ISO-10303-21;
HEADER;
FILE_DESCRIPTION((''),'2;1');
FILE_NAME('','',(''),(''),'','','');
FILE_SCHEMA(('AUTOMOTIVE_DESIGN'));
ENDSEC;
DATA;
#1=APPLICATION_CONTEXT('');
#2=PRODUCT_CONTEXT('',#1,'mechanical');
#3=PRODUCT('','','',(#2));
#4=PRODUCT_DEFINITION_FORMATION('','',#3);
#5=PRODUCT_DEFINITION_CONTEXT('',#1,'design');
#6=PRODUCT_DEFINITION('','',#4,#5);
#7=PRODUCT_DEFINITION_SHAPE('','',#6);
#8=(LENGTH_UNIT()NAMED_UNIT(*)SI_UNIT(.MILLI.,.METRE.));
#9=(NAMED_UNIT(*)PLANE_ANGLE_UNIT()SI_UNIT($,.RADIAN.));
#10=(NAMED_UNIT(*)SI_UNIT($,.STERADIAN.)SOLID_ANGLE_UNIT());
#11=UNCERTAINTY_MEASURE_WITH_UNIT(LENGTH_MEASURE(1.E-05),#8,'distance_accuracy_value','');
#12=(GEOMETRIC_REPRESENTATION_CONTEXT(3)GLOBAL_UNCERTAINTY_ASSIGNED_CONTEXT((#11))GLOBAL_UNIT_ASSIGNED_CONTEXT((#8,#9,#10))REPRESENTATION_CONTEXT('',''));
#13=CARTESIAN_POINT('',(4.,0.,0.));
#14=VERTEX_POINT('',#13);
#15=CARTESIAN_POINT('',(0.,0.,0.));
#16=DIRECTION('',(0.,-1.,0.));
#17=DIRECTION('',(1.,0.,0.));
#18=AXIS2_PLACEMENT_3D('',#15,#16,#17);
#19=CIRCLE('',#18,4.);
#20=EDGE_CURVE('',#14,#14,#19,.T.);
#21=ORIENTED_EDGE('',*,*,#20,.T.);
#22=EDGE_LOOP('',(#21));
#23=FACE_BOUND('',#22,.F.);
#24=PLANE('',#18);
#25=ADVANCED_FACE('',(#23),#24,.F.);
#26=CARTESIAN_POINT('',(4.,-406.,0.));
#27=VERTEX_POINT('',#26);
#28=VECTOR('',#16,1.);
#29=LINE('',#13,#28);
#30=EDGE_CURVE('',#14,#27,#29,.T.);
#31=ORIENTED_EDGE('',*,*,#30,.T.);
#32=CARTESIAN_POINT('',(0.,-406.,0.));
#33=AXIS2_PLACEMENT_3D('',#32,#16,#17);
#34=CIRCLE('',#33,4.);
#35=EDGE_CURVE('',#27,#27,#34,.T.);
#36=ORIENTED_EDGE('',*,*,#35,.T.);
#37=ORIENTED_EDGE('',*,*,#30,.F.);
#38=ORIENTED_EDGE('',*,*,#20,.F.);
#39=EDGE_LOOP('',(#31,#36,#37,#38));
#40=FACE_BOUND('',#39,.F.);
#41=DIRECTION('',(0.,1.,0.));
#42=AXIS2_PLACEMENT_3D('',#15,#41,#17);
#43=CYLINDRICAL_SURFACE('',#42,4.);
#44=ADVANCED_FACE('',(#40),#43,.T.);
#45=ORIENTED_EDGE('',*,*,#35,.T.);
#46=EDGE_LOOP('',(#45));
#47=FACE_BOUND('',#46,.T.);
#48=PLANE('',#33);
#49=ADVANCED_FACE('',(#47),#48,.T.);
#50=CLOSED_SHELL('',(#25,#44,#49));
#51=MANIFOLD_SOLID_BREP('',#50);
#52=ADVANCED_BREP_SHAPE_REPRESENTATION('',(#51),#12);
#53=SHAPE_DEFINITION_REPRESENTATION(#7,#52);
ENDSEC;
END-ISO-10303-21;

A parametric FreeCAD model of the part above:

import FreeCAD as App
import Part
import Sketcher

doc = App.newDocument("Part")
params = doc.addObject("Spreadsheet::Sheet", "Params")
for row, (alias, value) in enumerate([
    ("sketch1_diameter", "8 mm"),
    ("pad1_length", "406 mm"),
], start=1):
    params.set(f"A{row}", alias)
    params.set(f"B{row}", "=" + value)
    params.setAlias(f"B{row}", alias)

body = doc.addObject("PartDesign::Body", "Body")

# Sketch on XZ plane
sketch1 = doc.addObject("Sketcher::SketchObject", "Sketch")
body.addObject(sketch1)
sketch1.AttachmentSupport = (doc.XZ_Plane, [""])
sketch1.MapMode = "FlatFace"
sketch1.addGeometry(Part.Circle(App.Vector(0, 0, 0), App.Vector(0, 0, 1), 4), False)
sketch1.addConstraint([
    Sketcher.Constraint("Coincident", 0, 3, -1, 1),
    Sketcher.Constraint("Diameter", 0, 8.0),
])
sketch1.setExpression("Constraints[1]", "Params.sketch1_diameter")
pad1 = doc.addObject("PartDesign::Pad", "Pad")
body.addObject(pad1)
pad1.Profile = sketch1
pad1.setExpression("Length", "Params.pad1_length")

doc.recompute()
